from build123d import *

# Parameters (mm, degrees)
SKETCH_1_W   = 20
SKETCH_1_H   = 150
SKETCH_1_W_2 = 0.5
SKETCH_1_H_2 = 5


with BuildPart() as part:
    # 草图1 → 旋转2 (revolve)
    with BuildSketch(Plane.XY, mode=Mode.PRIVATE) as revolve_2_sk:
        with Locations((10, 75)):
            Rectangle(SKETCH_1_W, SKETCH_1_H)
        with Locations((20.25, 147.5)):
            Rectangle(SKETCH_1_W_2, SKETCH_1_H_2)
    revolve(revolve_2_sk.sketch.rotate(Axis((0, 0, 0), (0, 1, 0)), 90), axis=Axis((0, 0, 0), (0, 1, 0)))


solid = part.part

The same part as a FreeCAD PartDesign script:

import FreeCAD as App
import Part
import Sketcher
from FreeCAD import Vector


def add_polygon(sketch, points):
    """Adds a closed chain of lines whose ends are joined by coincident constraints."""
    first, n = sketch.GeometryCount, len(points)
    for a, b in zip(points, points[1:] + points[:1]):
        sketch.addGeometry(Part.LineSegment(App.Vector(*a, 0), App.Vector(*b, 0)), False)
    for i in range(n):
        sketch.addConstraint(Sketcher.Constraint("Coincident", first + i, 2, first + (i + 1) % n, 1))

doc = App.newDocument("Part")
body = doc.addObject("PartDesign::Body", "Body")

# Sketch on XY plane
sketch1 = body.newObject("Sketcher::SketchObject", "Sketch")
sketch1.AttachmentSupport = (doc.getObject("XY_Plane"), [""])
sketch1.MapMode = "FlatFace"
add_polygon(sketch1, [(0, 150), (0, 0), (20, 0), (20, 145), (20.5, 145), (20.5, 150)])  # lines 0-5
sketch1.addConstraint([
    Sketcher.Constraint("Vertical", 0),
    Sketcher.Constraint("Horizontal", 1),
    Sketcher.Constraint("Vertical", 2),
    Sketcher.Constraint("Horizontal", 3),
    Sketcher.Constraint("Vertical", 4),
    Sketcher.Constraint("Horizontal", 5),
    Sketcher.Constraint("Coincident", 0, 2, -1, 1),
    Sketcher.Constraint("DistanceX", 1, 1, 1, 2, 20.0),
    Sketcher.Constraint("DistanceY", 0, 2, 0, 1, 150.0),
    Sketcher.Constraint("DistanceY", 2, 1, 2, 2, 145.0),
    Sketcher.Constraint("DistanceX", 3, 1, 3, 2, 0.5),
])
revolution = body.newObject("PartDesign::Revolution", "Revolution")
revolution.Profile = sketch1
revolution.ReferenceAxis = (sketch1, ["V_Axis"])
revolution.Angle = 360

doc.recompute()
